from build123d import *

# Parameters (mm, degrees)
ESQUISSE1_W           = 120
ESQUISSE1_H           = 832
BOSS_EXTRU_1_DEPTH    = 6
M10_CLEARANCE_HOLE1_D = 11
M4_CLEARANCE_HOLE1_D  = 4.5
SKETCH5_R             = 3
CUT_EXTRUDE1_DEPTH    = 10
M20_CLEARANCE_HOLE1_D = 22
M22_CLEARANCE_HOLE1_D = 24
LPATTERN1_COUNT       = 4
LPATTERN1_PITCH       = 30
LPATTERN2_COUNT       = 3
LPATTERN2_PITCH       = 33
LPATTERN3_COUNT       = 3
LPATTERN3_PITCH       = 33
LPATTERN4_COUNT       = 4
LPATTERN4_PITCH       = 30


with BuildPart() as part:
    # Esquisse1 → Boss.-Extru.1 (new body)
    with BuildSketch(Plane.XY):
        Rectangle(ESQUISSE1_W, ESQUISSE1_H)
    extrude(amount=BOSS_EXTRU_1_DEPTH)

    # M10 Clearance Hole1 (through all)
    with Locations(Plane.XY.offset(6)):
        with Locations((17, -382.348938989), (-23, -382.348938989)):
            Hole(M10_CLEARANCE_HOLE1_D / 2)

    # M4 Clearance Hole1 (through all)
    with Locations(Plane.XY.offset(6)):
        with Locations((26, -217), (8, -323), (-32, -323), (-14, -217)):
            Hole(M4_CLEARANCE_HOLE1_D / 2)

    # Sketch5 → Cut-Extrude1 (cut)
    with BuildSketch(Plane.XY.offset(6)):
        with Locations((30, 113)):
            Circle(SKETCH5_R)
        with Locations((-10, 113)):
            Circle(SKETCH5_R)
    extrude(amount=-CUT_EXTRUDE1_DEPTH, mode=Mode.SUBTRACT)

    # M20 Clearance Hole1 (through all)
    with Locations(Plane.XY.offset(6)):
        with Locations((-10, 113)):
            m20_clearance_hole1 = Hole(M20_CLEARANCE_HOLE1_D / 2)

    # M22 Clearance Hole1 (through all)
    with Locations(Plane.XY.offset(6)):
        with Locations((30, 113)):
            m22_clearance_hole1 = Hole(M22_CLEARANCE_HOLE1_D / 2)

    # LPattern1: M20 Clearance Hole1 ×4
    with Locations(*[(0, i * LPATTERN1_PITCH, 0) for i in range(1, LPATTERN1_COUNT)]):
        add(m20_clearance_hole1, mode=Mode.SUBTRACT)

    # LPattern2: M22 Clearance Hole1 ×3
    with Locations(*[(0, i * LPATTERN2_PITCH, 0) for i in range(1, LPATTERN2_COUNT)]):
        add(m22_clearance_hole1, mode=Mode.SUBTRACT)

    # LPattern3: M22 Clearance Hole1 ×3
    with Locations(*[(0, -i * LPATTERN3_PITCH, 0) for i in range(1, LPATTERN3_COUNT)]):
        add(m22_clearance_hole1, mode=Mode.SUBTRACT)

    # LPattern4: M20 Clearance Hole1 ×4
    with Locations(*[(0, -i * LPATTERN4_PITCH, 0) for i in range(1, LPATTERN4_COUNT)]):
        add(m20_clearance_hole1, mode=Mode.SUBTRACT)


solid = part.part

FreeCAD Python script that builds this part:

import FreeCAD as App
import Part
import Sketcher
Q = App.Units.Quantity


def add_polygon(sketch, points):
    """Adds a closed chain of lines whose ends are joined by coincident constraints."""
    first, n = sketch.GeometryCount, len(points)
    for a, b in zip(points, points[1:] + points[:1]):
        sketch.addGeometry(Part.LineSegment(App.Vector(*a, 0), App.Vector(*b, 0)), False)
    for i in range(n):
        sketch.addConstraint(Sketcher.Constraint("Coincident", first + i, 2, first + (i + 1) % n, 1))

doc = App.newDocument("Part")
body = doc.addObject("PartDesign::Body", "Body")

# Sketch on XY plane
sketch1 = body.newObject("Sketcher::SketchObject", "Sketch")
sketch1.AttachmentSupport = (doc.getObject("XY_Plane"), [""])
sketch1.MapMode = "FlatFace"
add_polygon(sketch1, [(-60, 416), (-60, -416), (60, -416), (60, 416)])  # lines 0-3
sketch1.addConstraint([
    Sketcher.Constraint("Vertical", 0),
    Sketcher.Constraint("Horizontal", 1),
    Sketcher.Constraint("Vertical", 2),
    Sketcher.Constraint("Horizontal", 3),
    Sketcher.Constraint("Symmetric", 0, 2, 2, 2, -1, 1),
    Sketcher.Constraint("DistanceX", 1, 1, 1, 2, Q("120 mm")),
    Sketcher.Constraint("DistanceY", 0, 2, 0, 1, Q("832 mm")),
])
pad1 = body.newObject("PartDesign::Pad", "Pad")
pad1.Profile = sketch1
pad1.Length = 6

# Sketch on XY plane
sketch2 = body.newObject("Sketcher::SketchObject", "Sketch001")
sketch2.AttachmentSupport = (doc.getObject("XY_Plane"), [""])
sketch2.MapMode = "FlatFace"
sketch2.AttachmentOffset = App.Placement(App.Vector(0, 0, 6), App.Rotation())
sketch2.addGeometry([
    Part.Circle(App.Vector(17, -382, 0), App.Vector(0, 0, 1), 6),
    Part.Circle(App.Vector(-23, -382, 0), App.Vector(0, 0, 1), 6),
], False)
sketch2.addConstraint([
    Sketcher.Constraint("Equal", 0, 1),
    Sketcher.Constraint("Horizontal", 0, 3, 1, 3),
    Sketcher.Constraint("Diameter", 0, Q("11 mm")),
    Sketcher.Constraint("DistanceX", -1, 1, 0, 3, Q("17 mm")),
    Sketcher.Constraint("DistanceX", 1, 3, -1, 1, Q("23 mm")),
    Sketcher.Constraint("DistanceY", 0, 3, -1, 1, Q("382.348939 mm")),
])
doc.recompute()
hole = body.newObject("PartDesign::Hole", "Hole")
hole.Profile = sketch2
hole.ThreadType = "None"
hole.Diameter = 11
hole.DepthType = "ThroughAll"

# Sketch on XY plane
sketch3 = body.newObject("Sketcher::SketchObject", "Sketch002")
sketch3.AttachmentSupport = (doc.getObject("XY_Plane"), [""])
sketch3.MapMode = "FlatFace"
sketch3.AttachmentOffset = App.Placement(App.Vector(0, 0, 6), App.Rotation())
sketch3.addGeometry([
    Part.Circle(App.Vector(26, -217, 0), App.Vector(0, 0, 1), 2.2),
    Part.Circle(App.Vector(8, -323, 0), App.Vector(0, 0, 1), 2.2),
    Part.Circle(App.Vector(-32, -323, 0), App.Vector(0, 0, 1), 2.2),
    Part.Circle(App.Vector(-14, -217, 0), App.Vector(0, 0, 1), 2.2),
], False)
sketch3.addConstraint([
    Sketcher.Constraint("Equal", 0, 1),
    Sketcher.Constraint("Equal", 1, 2),
    Sketcher.Constraint("Equal", 2, 3),
    Sketcher.Constraint("Horizontal", 1, 3, 2, 3),
    Sketcher.Constraint("Horizontal", 0, 3, 3, 3),
    Sketcher.Constraint("Diameter", 0, Q("4.5 mm")),
    Sketcher.Constraint("DistanceX", -1, 1, 0, 3, Q("26 mm")),
    Sketcher.Constraint("DistanceY", 0, 3, -1, 1, Q("217 mm")),
    Sketcher.Constraint("DistanceX", -1, 1, 1, 3, Q("8 mm")),
    Sketcher.Constraint("DistanceY", 1, 3, -1, 1, Q("323 mm")),
    Sketcher.Constraint("DistanceX", 2, 3, -1, 1, Q("32 mm")),
    Sketcher.Constraint("DistanceX", 3, 3, -1, 1, Q("14 mm")),
])
doc.recompute()
hole2 = body.newObject("PartDesign::Hole", "Hole001")
hole2.Profile = sketch3
hole2.ThreadType = "None"
hole2.Diameter = 4.5
hole2.DepthType = "ThroughAll"

# Sketch on XY plane
sketch4 = body.newObject("Sketcher::SketchObject", "Sketch003")
sketch4.AttachmentSupport = (doc.getObject("XY_Plane"), [""])
sketch4.MapMode = "FlatFace"
sketch4.AttachmentOffset = App.Placement(App.Vector(0, 0, 6), App.Rotation())
sketch4.addGeometry([
    Part.Circle(App.Vector(30, 113, 0), App.Vector(0, 0, 1), 3),
    Part.Circle(App.Vector(-10, 113, 0), App.Vector(0, 0, 1), 3),
], False)
sketch4.addConstraint([
    Sketcher.Constraint("Equal", 0, 1),
    Sketcher.Constraint("Horizontal", 0, 3, 1, 3),
    Sketcher.Constraint("Diameter", 0, Q("6 mm")),
    Sketcher.Constraint("DistanceX", -1, 1, 0, 3, Q("30 mm")),
    Sketcher.Constraint("DistanceY", -1, 1, 0, 3, Q("113 mm")),
    Sketcher.Constraint("DistanceX", 1, 3, -1, 1, Q("10 mm")),
])
pocket1 = body.newObject("PartDesign::Pocket", "Pocket")
pocket1.Profile = sketch4
pocket1.Length = 10

# Sketch on XY plane
sketch5 = body.newObject("Sketcher::SketchObject", "Sketch004")
sketch5.AttachmentSupport = (doc.getObject("XY_Plane"), [""])
sketch5.MapMode = "FlatFace"
sketch5.AttachmentOffset = App.Placement(App.Vector(0, 0, 6), App.Rotation())
sketch5.addGeometry(Part.Circle(App.Vector(-10, 113, 0), App.Vector(0, 0, 1), 11), False)
sketch5.addConstraint([
    Sketcher.Constraint("Diameter", 0, Q("22 mm")),
    Sketcher.Constraint("DistanceX", 0, 3, -1, 1, Q("10 mm")),
    Sketcher.Constraint("DistanceY", -1, 1, 0, 3, Q("113 mm")),
])
doc.recompute()
hole3 = body.newObject("PartDesign::Hole", "Hole002")
hole3.Profile = sketch5
hole3.ThreadType = "None"
hole3.Diameter = 22
hole3.DepthType = "ThroughAll"

# Sketch on XY plane
sketch6 = body.newObject("Sketcher::SketchObject", "Sketch005")
sketch6.AttachmentSupport = (doc.getObject("XY_Plane"), [""])
sketch6.MapMode = "FlatFace"
sketch6.AttachmentOffset = App.Placement(App.Vector(0, 0, 6), App.Rotation())
sketch6.addGeometry(Part.Circle(App.Vector(30, 113, 0), App.Vector(0, 0, 1), 12), False)
sketch6.addConstraint([
    Sketcher.Constraint("Diameter", 0, Q("24 mm")),
    Sketcher.Constraint("DistanceX", -1, 1, 0, 3, Q("30 mm")),
    Sketcher.Constraint("DistanceY", -1, 1, 0, 3, Q("113 mm")),
])
doc.recompute()
hole4 = body.newObject("PartDesign::Hole", "Hole003")
hole4.Profile = sketch6
hole4.ThreadType = "None"
hole4.Diameter = 24
hole4.DepthType = "ThroughAll"
doc.recompute()

linearpattern = body.newObject("PartDesign::LinearPattern", "LinearPattern")
linearpattern.Originals = [hole3]
linearpattern.Direction = (doc.getObject("Y_Axis"), [""])
linearpattern.Mode = "offset"
linearpattern.Offset = 30
linearpattern.Occurrences = 4
body.Tip = linearpattern
doc.recompute()

linearpattern2 = body.newObject("PartDesign::LinearPattern", "LinearPattern001")
linearpattern2.Originals = [hole4]
linearpattern2.Direction = (doc.getObject("Y_Axis"), [""])
linearpattern2.Mode = "offset"
linearpattern2.Offset = 33
linearpattern2.Occurrences = 3
body.Tip = linearpattern2
doc.recompute()

linearpattern3 = body.newObject("PartDesign::LinearPattern", "LinearPattern002")
linearpattern3.Originals = [hole4]
linearpattern3.Direction = (doc.getObject("Y_Axis"), [""])
linearpattern3.Mode = "offset"
linearpattern3.Offset = 33
linearpattern3.Occurrences = 3
linearpattern3.Reversed = True
body.Tip = linearpattern3
doc.recompute()

linearpattern4 = body.newObject("PartDesign::LinearPattern", "LinearPattern003")
linearpattern4.Originals = [hole3]
linearpattern4.Direction = (doc.getObject("Y_Axis"), [""])
linearpattern4.Mode = "offset"
linearpattern4.Offset = 30
linearpattern4.Occurrences = 4
linearpattern4.Reversed = True
body.Tip = linearpattern4

doc.recompute()
